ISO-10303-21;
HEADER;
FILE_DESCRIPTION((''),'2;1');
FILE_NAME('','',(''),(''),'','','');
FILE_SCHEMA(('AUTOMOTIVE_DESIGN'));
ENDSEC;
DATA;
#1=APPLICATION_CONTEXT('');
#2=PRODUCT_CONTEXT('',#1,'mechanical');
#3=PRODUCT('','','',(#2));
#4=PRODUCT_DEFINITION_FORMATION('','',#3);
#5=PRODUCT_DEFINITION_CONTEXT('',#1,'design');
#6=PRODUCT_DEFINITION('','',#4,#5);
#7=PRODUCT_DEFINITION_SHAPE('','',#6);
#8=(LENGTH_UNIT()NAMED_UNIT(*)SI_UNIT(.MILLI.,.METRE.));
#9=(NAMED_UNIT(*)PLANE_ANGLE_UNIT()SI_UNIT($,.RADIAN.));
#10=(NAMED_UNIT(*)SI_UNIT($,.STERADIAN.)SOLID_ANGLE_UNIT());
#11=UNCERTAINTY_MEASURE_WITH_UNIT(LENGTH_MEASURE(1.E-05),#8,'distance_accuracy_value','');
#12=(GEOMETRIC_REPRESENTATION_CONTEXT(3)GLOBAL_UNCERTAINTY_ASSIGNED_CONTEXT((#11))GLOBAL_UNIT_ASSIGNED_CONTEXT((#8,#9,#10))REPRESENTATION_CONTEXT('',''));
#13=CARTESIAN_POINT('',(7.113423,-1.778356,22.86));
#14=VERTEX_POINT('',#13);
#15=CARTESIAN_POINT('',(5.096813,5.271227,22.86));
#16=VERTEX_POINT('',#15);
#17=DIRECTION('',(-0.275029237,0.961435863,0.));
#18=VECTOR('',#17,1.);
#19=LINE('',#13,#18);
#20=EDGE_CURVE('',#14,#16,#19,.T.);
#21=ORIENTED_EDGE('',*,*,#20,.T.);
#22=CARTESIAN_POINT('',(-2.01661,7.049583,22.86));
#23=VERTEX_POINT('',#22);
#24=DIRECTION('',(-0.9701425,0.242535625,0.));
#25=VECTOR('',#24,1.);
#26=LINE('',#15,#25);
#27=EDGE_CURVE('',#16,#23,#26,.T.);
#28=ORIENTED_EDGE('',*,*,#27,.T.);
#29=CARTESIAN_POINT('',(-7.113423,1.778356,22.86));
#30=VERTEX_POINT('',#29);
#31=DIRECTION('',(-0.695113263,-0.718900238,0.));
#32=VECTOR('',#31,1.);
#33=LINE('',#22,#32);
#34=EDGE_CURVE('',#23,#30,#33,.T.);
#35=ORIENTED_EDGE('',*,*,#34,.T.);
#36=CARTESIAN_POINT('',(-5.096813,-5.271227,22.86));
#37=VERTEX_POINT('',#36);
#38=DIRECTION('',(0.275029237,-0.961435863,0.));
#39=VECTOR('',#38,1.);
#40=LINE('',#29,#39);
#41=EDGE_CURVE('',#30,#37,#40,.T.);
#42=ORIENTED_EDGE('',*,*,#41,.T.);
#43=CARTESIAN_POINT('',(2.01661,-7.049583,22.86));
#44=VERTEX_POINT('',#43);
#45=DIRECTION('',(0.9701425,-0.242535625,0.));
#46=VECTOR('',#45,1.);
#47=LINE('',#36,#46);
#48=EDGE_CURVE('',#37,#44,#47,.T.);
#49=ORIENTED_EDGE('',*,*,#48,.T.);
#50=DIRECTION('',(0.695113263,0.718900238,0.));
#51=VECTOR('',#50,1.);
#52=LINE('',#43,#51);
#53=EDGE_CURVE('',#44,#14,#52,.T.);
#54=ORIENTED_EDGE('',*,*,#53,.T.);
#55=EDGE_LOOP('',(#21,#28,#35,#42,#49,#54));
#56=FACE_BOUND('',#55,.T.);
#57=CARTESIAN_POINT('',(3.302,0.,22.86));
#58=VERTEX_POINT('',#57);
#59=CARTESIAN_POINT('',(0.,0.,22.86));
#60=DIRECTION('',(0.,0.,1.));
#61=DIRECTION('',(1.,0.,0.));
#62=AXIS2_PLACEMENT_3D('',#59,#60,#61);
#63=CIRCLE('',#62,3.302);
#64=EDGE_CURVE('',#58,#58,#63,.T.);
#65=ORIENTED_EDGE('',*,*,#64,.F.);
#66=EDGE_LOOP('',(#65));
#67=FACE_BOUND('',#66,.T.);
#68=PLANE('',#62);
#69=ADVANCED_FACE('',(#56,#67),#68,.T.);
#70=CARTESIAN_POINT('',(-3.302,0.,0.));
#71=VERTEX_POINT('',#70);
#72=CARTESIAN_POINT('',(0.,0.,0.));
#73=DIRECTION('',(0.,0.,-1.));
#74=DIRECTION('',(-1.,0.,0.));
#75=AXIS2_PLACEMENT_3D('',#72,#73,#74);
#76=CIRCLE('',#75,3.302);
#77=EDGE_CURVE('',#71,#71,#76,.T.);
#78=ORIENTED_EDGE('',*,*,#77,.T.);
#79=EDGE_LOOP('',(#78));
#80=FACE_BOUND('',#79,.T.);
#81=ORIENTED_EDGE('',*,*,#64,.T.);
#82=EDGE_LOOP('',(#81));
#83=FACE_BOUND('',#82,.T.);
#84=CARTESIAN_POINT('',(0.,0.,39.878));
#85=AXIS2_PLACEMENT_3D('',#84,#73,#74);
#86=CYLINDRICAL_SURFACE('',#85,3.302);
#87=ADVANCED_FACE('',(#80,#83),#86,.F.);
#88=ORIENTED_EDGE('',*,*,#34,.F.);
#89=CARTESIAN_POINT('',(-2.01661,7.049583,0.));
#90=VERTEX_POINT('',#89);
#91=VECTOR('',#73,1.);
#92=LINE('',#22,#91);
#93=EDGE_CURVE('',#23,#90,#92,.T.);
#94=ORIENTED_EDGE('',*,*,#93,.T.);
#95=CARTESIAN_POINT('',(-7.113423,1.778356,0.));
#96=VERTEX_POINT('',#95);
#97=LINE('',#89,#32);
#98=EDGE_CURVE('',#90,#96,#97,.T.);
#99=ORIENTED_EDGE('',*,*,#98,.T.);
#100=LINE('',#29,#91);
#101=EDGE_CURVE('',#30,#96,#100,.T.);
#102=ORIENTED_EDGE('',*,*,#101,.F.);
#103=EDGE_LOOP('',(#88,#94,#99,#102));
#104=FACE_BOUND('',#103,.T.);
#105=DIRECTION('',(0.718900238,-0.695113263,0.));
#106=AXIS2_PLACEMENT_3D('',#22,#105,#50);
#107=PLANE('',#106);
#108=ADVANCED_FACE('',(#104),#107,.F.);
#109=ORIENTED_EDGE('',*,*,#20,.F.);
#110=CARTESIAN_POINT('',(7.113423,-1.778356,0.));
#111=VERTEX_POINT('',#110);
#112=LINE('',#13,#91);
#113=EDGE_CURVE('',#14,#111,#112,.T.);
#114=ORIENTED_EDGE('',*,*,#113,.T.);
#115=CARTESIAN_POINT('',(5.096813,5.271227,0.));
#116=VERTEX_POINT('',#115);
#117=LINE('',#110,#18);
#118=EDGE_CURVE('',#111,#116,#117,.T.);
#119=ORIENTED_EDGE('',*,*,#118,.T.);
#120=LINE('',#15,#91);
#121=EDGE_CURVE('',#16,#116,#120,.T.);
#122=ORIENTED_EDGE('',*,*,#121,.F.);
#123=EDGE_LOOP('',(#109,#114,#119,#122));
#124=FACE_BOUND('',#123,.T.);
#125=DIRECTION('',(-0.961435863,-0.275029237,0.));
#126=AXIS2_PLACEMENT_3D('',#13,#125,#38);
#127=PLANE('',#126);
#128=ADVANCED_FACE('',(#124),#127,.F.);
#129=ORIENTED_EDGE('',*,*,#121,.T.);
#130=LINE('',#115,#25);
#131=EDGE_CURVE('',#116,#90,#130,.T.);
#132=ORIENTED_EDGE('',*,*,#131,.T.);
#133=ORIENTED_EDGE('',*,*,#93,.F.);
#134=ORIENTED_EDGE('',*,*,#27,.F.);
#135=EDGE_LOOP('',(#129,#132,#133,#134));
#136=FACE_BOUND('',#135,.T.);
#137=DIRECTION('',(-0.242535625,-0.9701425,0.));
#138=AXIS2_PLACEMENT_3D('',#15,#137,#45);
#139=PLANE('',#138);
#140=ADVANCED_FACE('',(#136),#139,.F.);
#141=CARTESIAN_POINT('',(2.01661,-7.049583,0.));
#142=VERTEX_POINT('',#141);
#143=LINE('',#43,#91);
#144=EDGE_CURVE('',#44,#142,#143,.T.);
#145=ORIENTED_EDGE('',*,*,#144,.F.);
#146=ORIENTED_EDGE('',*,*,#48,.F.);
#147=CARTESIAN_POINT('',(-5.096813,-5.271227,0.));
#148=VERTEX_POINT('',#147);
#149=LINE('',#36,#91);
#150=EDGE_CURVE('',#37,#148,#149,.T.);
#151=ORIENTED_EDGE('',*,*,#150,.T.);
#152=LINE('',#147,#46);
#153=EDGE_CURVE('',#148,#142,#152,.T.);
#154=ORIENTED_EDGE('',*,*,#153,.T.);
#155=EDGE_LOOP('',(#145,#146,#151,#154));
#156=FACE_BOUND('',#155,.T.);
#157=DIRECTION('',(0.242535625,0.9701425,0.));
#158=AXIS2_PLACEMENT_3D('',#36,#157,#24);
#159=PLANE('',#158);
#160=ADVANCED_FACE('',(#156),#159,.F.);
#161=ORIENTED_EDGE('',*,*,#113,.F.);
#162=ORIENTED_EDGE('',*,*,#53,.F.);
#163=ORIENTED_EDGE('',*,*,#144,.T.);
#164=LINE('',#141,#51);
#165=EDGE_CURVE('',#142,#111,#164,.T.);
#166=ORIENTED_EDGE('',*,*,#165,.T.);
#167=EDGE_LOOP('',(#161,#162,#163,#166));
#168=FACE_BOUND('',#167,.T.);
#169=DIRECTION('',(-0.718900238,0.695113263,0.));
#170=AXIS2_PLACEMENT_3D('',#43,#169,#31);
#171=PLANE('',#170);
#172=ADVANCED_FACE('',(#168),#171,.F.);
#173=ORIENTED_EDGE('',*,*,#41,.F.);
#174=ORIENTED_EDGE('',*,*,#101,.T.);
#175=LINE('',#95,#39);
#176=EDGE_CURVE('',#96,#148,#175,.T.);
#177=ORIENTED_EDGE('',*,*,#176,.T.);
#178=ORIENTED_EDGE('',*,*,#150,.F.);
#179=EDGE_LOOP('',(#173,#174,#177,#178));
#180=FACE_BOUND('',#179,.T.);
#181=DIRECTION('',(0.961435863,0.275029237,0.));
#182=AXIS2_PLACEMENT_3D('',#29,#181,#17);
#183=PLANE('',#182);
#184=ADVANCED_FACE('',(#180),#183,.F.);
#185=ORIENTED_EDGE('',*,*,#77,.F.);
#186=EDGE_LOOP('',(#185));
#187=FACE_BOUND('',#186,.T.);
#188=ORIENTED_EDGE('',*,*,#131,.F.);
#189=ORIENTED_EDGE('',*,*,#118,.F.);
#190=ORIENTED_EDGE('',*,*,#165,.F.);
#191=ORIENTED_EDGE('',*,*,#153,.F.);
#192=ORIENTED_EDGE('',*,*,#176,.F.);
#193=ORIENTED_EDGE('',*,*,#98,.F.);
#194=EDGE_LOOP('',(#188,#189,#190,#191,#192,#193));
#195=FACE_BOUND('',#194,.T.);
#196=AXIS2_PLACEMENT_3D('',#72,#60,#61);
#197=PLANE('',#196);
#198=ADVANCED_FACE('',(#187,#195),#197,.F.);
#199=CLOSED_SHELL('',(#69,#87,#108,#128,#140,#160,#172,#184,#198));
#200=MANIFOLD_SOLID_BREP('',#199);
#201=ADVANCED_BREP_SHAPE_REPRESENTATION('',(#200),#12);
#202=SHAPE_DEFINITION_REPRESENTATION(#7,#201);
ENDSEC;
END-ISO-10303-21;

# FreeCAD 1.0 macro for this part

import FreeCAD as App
import Part
import Sketcher
from FreeCAD import Vector
Q = App.Units.Quantity

doc = App.newDocument("Part")
body = doc.addObject("PartDesign::Body", "Body")

# Sketch on XY plane
sketch1 = body.newObject("Sketcher::SketchObject", "Sketch")
sketch1.AttachmentSupport = (doc.getObject("XY_Plane"), [""])
sketch1.MapMode = "FlatFace"
sketch1.addGeometry([
    Part.LineSegment(Vector(-7, 2, 0), Vector(-5, -5, 0)),  # 0
    Part.LineSegment(Vector(-5, -5, 0), Vector(2, -7, 0)),  # 1
    Part.LineSegment(Vector(2, -7, 0), Vector(7, -2, 0)),  # 2
    Part.LineSegment(Vector(7, -2, 0), Vector(5, 5, 0)),  # 3
    Part.LineSegment(Vector(5, 5, 0), Vector(-2, 7, 0)),  # 4
    Part.LineSegment(Vector(-2, 7, 0), Vector(-7, 2, 0)),  # 5
], False)
sketch1.addConstraint([
    Sketcher.Constraint("Coincident", 0, 2, 1, 1),
    Sketcher.Constraint("Coincident", 1, 2, 2, 1),
    Sketcher.Constraint("Coincident", 2, 2, 3, 1),
    Sketcher.Constraint("Coincident", 3, 2, 4, 1),
    Sketcher.Constraint("Coincident", 4, 2, 5, 1),
    Sketcher.Constraint("Coincident", 5, 2, 0, 1),
    Sketcher.Constraint("Symmetric", 0, 2, 3, 2, -1, 1),
    Sketcher.Constraint("Symmetric", 1, 2, 4, 2, -1, 1),
    Sketcher.Constraint("Symmetric", 2, 2, 5, 2, -1, 1),
    Sketcher.Constraint("Equal", 0, 1),
    Sketcher.Constraint("Equal", 1, 2),
    Sketcher.Constraint("Distance", 0, Q("7.332348 mm")),
    Sketcher.Constraint("DistanceX", -1, 1, 1, 2, Q("2.01661 mm")),
    Sketcher.Constraint("DistanceY", 0, 2, 2, 2, Q("3.492871 mm")),
    Sketcher.Constraint("DistanceX", 3, 2, 2, 2, Q("2.01661 mm")),
])
pad1 = body.newObject("PartDesign::Pad", "Pad")
pad1.Profile = sketch1
pad1.Length = Q("0.9 in")

# Sketch on XY plane
sketch2 = body.newObject("Sketcher::SketchObject", "Sketch001")
sketch2.AttachmentSupport = (doc.getObject("XY_Plane"), [""])
sketch2.MapMode = "FlatFace"
sketch2.addGeometry(Part.Circle(Vector(0, 0, 0), Vector(0, 0, 1), 3.3), False)
sketch2.addConstraint([
    Sketcher.Constraint("Coincident", 0, 3, -1, 1),
    Sketcher.Constraint("Diameter", 0, Q("0.26 in")),
])
pocket1 = body.newObject("PartDesign::Pocket", "Pocket")
pocket1.Profile = sketch2
pocket1.Length = Q("1.57 in")
pocket1.Reversed = True

doc.recompute()
